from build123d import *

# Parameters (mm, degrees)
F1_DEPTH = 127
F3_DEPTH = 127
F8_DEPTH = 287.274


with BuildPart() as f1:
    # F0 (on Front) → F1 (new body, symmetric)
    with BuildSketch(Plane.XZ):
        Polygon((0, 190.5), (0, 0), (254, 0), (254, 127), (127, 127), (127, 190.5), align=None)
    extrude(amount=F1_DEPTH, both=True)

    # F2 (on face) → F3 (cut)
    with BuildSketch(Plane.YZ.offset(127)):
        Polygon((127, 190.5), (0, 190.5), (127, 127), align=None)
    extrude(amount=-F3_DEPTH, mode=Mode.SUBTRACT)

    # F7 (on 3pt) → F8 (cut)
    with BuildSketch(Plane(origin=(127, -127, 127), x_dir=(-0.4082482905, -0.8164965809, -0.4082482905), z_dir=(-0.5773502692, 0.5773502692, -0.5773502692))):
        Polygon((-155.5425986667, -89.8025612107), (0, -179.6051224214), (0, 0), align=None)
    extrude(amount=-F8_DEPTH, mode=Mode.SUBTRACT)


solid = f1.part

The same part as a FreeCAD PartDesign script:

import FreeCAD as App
import Part
import Sketcher
Q = App.Units.Quantity


def add_polygon(sketch, points):
    """Adds a closed chain of lines whose ends are joined by coincident constraints."""
    first, n = sketch.GeometryCount, len(points)
    for a, b in zip(points, points[1:] + points[:1]):
        sketch.addGeometry(Part.LineSegment(App.Vector(*a, 0), App.Vector(*b, 0)), False)
    for i in range(n):
        sketch.addConstraint(Sketcher.Constraint("Coincident", first + i, 2, first + (i + 1) % n, 1))

doc = App.newDocument("Part")
params = doc.addObject("Spreadsheet::Sheet", "Params")
for row, (alias, value) in enumerate([
    ("sketch1_width", "10 in"),
    ("sketch1_height", "7.5 in"),
    ("pad1_length", "10 in"),
    ("sketch2_width", "5 in"),
    ("sketch2_height", "2.5 in"),
    ("pocket1_length", "5 in"),
    ("pocket2_length", "11.31 in"),
], start=1):
    params.set(f"A{row}", alias)
    params.set(f"B{row}", "=" + value)
    params.setAlias(f"B{row}", alias)

body = doc.addObject("PartDesign::Body", "Body")

sketch1 = body.newObject("Sketcher::SketchObject", "Sketch")
sketch1.AttachmentSupport = (doc.getObject("XZ_Plane"), [""])
sketch1.MapMode = "FlatFace"
add_polygon(sketch1, [(0, 190.5), (0, 0), (254, 0), (254, 127), (127, 127), (127, 190.5)])
sketch1.addConstraint([
    Sketcher.Constraint("Vertical", 0),
    Sketcher.Constraint("Horizontal", 1),
    Sketcher.Constraint("Vertical", 2),
    Sketcher.Constraint("Horizontal", 3),
    Sketcher.Constraint("Vertical", 4),
    Sketcher.Constraint("Horizontal", 5),
    Sketcher.Constraint("Coincident", 0, 2, -1, 1),
    Sketcher.Constraint("Equal", 3, 5),
    Sketcher.Constraint("Equal", 5, 2),
    Sketcher.Constraint("DistanceX", 1, 1, 1, 2, Q("10 in")),
    Sketcher.Constraint("DistanceY", 0, 2, 0, 1, Q("7.5 in")),
])
sketch1.setExpression("Constraints[15]", "Params.sketch1_width")
sketch1.setExpression("Constraints[16]", "Params.sketch1_height")
pad1 = body.newObject("PartDesign::Pad", "Pad")
pad1.Profile = sketch1
pad1.setExpression("Length", "Params.pad1_length")
pad1.Midplane = True

sketch2 = body.newObject("Sketcher::SketchObject", "Sketch001")
sketch2.AttachmentSupport = (doc.getObject("YZ_Plane"), [""])
sketch2.MapMode = "FlatFace"
sketch2.AttachmentOffset = App.Placement(App.Vector(0, 0, 5 * 25.4), App.Rotation())
add_polygon(sketch2, [(127, 190.5), (0, 190.5), (127, 127)])
sketch2.addConstraint([
    Sketcher.Constraint("Horizontal", 0),
    Sketcher.Constraint("Vertical", 2),
    Sketcher.Constraint("PointOnObject", 0, 2, -2),
    Sketcher.Constraint("DistanceX", 0, 2, 0, 1, Q("5 in")),
    Sketcher.Constraint("DistanceY", 2, 1, 2, 2, Q("2.5 in")),
    Sketcher.Constraint("DistanceY", -1, 1, 1, 2, Q("5 in")),
])
sketch2.setExpression("Constraints[6]", "Params.sketch2_width")
sketch2.setExpression("Constraints[7]", "Params.sketch2_height")
pocket1 = body.newObject("PartDesign::Pocket", "Pocket")
pocket1.Profile = sketch2
pocket1.setExpression("Length", "Params.pocket1_length")

sketch3 = body.newObject("Sketcher::SketchObject", "Sketch002")
sketch3.Placement = App.Placement(App.Vector(127, -127, 127), App.Rotation(App.Vector(-0.40824829, -0.816496581, -0.40824829), App.Vector(-0.707106781, 0, 0.707106781), App.Vector(-0.577350269, 0.577350269, -0.577350269), "ZXY"))
add_polygon(sketch3, [(-155.542599, -89.802561), (0, -179.605122), (0, 0)])
sketch3.addConstraint([
    Sketcher.Constraint("Vertical", 1),
    Sketcher.Constraint("Coincident", 1, 2, -1, 1),
    Sketcher.Constraint("Equal", 0, 2),
    Sketcher.Constraint("Angle", 0, Q("-30 deg")),
    Sketcher.Constraint("DistanceX", 2, 2, -1, 1, 155.542599),
])
pocket2 = body.newObject("PartDesign::Pocket", "Pocket001")
pocket2.Profile = sketch3
pocket2.setExpression("Length", "Params.pocket2_length")

doc.recompute()
